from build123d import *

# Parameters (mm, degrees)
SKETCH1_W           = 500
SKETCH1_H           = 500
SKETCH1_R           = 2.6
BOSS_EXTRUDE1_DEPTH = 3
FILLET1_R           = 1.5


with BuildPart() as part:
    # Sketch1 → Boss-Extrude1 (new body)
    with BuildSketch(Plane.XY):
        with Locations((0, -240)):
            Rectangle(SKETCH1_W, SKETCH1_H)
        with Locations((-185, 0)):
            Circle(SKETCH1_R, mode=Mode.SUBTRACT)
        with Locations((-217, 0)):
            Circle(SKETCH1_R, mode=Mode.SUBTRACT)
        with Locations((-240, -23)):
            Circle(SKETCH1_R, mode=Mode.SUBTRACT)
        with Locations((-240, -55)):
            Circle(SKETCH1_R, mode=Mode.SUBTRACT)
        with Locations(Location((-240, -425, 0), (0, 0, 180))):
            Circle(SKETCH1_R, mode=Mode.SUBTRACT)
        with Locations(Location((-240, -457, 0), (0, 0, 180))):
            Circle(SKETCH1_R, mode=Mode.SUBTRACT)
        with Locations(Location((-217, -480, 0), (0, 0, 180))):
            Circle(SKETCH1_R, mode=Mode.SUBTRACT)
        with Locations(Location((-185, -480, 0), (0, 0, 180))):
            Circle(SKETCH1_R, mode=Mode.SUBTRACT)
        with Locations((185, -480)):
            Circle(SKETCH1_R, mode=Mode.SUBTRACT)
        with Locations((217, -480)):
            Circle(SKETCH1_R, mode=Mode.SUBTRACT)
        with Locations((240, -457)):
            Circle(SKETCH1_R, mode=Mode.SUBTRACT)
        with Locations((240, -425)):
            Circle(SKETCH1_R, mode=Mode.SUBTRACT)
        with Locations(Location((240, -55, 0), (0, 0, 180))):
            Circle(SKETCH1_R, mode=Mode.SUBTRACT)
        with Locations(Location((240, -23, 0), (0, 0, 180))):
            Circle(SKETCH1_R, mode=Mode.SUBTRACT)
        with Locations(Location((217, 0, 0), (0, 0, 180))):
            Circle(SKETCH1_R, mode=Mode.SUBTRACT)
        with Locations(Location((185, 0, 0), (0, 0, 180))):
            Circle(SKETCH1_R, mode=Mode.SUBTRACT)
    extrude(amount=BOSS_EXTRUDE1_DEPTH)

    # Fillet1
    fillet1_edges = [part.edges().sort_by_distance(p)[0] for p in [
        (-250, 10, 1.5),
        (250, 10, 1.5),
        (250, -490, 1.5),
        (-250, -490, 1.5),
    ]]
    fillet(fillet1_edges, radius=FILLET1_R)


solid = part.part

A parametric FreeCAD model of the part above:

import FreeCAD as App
import Part
import Sketcher
from FreeCAD import Vector


def edges_at(feature, points):
    """Names of the edges that pass closest to the given points."""
    edges = feature.Shape.Edges
    near = lambda p: min(range(len(edges)), key=lambda i: edges[i].distToShape(Part.Vertex(*p))[0])
    return sorted({f"Edge{near(p) + 1}" for p in points})

doc = App.newDocument("Part")
body = doc.addObject("PartDesign::Body", "Body")

# Sketch on XY plane
sketch1 = doc.addObject("Sketcher::SketchObject", "Sketch")
body.addObject(sketch1)
sketch1.AttachmentSupport = (doc.XY_Plane, [""])
sketch1.MapMode = "FlatFace"
sketch1.addGeometry([
    Part.LineSegment(Vector(-250, 10, 0), Vector(-250, -490, 0)),  # 0
    Part.LineSegment(Vector(-250, -490, 0), Vector(250, -490, 0)),  # 1
    Part.LineSegment(Vector(250, -490, 0), Vector(250, 10, 0)),  # 2
    Part.LineSegment(Vector(250, 10, 0), Vector(-250, 10, 0)),  # 3
    Part.Circle(Vector(-217, -480, 0), Vector(0, 0, 1), 2.6),  # 4
    Part.Circle(Vector(-240, -457, 0), Vector(0, 0, 1), 2.6),  # 5
    Part.Circle(Vector(-185, -480, 0), Vector(0, 0, 1), 2.6),  # 6
    Part.Circle(Vector(-240, -425, 0), Vector(0, 0, 1), 2.6),  # 7
    Part.Circle(Vector(185, -480, 0), Vector(0, 0, 1), 2.6),  # 8
    Part.Circle(Vector(217, -480, 0), Vector(0, 0, 1), 2.6),  # 9
    Part.Circle(Vector(240, -457, 0), Vector(0, 0, 1), 2.6),  # 10
    Part.Circle(Vector(240, -425, 0), Vector(0, 0, 1), 2.6),  # 11
    Part.Circle(Vector(-240, -55, 0), Vector(0, 0, 1), 2.6),  # 12
    Part.Circle(Vector(-240, -23, 0), Vector(0, 0, 1), 2.6),  # 13
    Part.Circle(Vector(-217, 0, 0), Vector(0, 0, 1), 2.6),  # 14
    Part.Circle(Vector(-185, 0, 0), Vector(0, 0, 1), 2.6),  # 15
    Part.Circle(Vector(240, -55, 0), Vector(0, 0, 1), 2.6),  # 16
    Part.Circle(Vector(185, 0, 0), Vector(0, 0, 1), 2.6),  # 17
    Part.Circle(Vector(240, -23, 0), Vector(0, 0, 1), 2.6),  # 18
    Part.Circle(Vector(217, 0, 0), Vector(0, 0, 1), 2.6),  # 19
], False)
sketch1.addConstraint([
    Sketcher.Constraint("Coincident", 0, 2, 1, 1),
    Sketcher.Constraint("Coincident", 1, 2, 2, 1),
    Sketcher.Constraint("Coincident", 2, 2, 3, 1),
    Sketcher.Constraint("Coincident", 3, 2, 0, 1),
    Sketcher.Constraint("Vertical", 0),
    Sketcher.Constraint("Horizontal", 1),
    Sketcher.Constraint("Vertical", 2),
    Sketcher.Constraint("Horizontal", 3),
    Sketcher.Constraint("Equal", 4, 5),
    Sketcher.Constraint("Equal", 5, 6),
    Sketcher.Constraint("Equal", 6, 7),
    Sketcher.Constraint("Equal", 7, 8),
    Sketcher.Constraint("Equal", 8, 9),
    Sketcher.Constraint("Equal", 9, 10),
    Sketcher.Constraint("Equal", 10, 11),
    Sketcher.Constraint("Equal", 11, 12),
    Sketcher.Constraint("Equal", 12, 13),
    Sketcher.Constraint("Equal", 13, 14),
    Sketcher.Constraint("Equal", 14, 15),
    Sketcher.Constraint("Equal", 15, 16),
    Sketcher.Constraint("Equal", 16, 17),
    Sketcher.Constraint("Equal", 17, 18),
    Sketcher.Constraint("Equal", 18, 19),
    Sketcher.Constraint("Symmetric", 15, 3, 17, 3, -1, 1),
    Sketcher.Constraint("Symmetric", 14, 3, 19, 3, -1, 1),
    Sketcher.Constraint("Symmetric", 6, 3, 8, 3, -2),
    Sketcher.Constraint("Symmetric", 4, 3, 9, 3, -2),
    Sketcher.Constraint("Symmetric", 5, 3, 10, 3, -2),
    Sketcher.Constraint("Symmetric", 7, 3, 11, 3, -2),
    Sketcher.Constraint("Symmetric", 12, 3, 16, 3, -2),
    Sketcher.Constraint("Symmetric", 13, 3, 18, 3, -2),
    Sketcher.Constraint("PointOnObject", 14, 3, -1),
    Sketcher.Constraint("PointOnObject", 15, 3, -1),
    Sketcher.Constraint("Horizontal", 4, 3, 6, 3),
    Sketcher.Constraint("Vertical", 5, 3, 7, 3),
    Sketcher.Constraint("Vertical", 7, 3, 12, 3),
    Sketcher.Constraint("Vertical", 12, 3, 13, 3),
    Sketcher.Constraint("Vertical", 4, 3, 14, 3),
    Sketcher.Constraint("Vertical", 6, 3, 15, 3),
    Sketcher.Constraint("Equal", 3, 0),
    Sketcher.Constraint("Diameter", 4, 5.2),
    Sketcher.Constraint("DistanceX", 1, 1, 1, 2, 500.0),
    Sketcher.Constraint("DistanceX", 4, 3, -1, 1, 217.0),
    Sketcher.Constraint("DistanceY", 4, 3, -1, 1, 480.0),
    Sketcher.Constraint("DistanceX", 5, 3, -1, 1, 240.0),
    Sketcher.Constraint("DistanceY", 5, 3, -1, 1, 457.0),
    Sketcher.Constraint("DistanceX", 6, 3, -1, 1, 185.0),
    Sketcher.Constraint("DistanceY", 7, 3, -1, 1, 425.0),
    Sketcher.Constraint("DistanceY", 12, 3, -1, 1, 55.0),
    Sketcher.Constraint("DistanceY", 13, 3, -1, 1, 23.0),
    Sketcher.Constraint("DistanceX", 0, 2, -1, 1, 250.0),
    Sketcher.Constraint("DistanceY", 0, 2, -1, 1, 490.0),
])
pad1 = doc.addObject("PartDesign::Pad", "Pad")
body.addObject(pad1)
pad1.Profile = sketch1
pad1.Length = 3
doc.recompute()

fillet = doc.addObject("PartDesign::Fillet", "Fillet")
body.addObject(fillet)
fillet.Base = (pad1, edges_at(pad1, [
    (-250, 10, 1.5),
    (250, 10, 1.5),
    (250, -490, 1.5),
    (-250, -490, 1.5),
]))
fillet.Radius = 1.5

doc.recompute()
